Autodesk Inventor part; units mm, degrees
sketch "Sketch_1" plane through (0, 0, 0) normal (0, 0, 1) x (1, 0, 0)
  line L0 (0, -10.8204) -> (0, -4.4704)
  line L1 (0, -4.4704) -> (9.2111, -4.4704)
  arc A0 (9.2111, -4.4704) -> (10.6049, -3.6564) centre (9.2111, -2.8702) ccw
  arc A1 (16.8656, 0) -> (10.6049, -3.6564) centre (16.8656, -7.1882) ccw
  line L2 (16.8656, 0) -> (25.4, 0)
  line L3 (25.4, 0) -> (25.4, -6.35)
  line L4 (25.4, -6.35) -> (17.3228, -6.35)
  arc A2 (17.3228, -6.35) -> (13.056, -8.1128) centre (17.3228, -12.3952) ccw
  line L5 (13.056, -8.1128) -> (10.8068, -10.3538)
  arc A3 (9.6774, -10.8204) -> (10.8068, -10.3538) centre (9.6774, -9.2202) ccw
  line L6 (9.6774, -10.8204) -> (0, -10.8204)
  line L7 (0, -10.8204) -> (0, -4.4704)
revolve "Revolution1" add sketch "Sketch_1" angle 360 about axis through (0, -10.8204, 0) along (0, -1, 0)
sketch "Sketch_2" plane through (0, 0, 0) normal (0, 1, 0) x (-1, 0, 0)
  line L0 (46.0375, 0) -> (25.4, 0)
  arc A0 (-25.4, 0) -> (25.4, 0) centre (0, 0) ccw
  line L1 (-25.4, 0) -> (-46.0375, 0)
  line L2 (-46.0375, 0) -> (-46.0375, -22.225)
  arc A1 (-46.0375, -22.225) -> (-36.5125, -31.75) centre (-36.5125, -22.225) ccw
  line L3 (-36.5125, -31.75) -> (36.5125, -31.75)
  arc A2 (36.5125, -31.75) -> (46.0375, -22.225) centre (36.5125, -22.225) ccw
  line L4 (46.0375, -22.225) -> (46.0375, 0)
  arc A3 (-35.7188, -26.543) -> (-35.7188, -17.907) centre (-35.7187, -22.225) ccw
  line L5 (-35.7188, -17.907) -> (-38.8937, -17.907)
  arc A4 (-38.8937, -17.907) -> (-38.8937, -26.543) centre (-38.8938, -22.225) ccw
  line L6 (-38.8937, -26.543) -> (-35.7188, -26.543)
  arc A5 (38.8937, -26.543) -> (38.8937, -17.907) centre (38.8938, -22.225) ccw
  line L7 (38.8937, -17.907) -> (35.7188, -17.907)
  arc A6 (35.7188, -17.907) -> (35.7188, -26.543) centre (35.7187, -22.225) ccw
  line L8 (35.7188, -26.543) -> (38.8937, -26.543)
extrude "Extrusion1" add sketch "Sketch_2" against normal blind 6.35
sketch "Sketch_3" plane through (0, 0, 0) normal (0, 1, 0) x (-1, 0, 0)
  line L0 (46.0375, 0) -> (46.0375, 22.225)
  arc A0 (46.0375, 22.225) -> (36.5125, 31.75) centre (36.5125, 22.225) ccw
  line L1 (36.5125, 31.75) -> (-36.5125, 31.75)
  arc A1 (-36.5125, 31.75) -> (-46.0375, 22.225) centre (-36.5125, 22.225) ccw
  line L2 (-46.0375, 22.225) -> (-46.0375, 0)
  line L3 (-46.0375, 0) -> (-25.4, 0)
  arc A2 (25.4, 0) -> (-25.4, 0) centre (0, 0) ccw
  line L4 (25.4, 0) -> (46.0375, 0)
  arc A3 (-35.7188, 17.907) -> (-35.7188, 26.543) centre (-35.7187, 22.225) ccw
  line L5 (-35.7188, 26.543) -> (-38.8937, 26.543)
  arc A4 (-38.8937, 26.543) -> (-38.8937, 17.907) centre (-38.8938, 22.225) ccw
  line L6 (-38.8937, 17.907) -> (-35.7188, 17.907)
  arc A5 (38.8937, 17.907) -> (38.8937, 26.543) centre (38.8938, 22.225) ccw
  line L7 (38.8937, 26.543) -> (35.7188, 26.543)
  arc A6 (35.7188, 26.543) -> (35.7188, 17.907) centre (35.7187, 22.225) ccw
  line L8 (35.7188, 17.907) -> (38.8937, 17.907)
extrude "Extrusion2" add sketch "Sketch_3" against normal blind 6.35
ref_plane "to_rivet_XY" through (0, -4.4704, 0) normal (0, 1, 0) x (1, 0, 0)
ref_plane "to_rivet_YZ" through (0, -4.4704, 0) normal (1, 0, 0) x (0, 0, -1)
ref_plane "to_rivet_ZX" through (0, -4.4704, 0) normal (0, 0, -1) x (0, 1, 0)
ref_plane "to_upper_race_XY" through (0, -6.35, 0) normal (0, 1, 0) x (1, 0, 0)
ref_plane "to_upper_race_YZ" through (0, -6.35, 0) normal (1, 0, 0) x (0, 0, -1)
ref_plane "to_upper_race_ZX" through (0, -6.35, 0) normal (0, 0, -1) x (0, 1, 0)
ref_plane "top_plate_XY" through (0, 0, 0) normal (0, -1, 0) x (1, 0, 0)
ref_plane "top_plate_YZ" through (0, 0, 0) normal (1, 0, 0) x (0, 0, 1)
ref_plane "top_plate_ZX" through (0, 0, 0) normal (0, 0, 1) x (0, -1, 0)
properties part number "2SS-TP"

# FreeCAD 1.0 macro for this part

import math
import FreeCAD as App
import Part
import Sketcher
Q = App.Units.Quantity

doc = App.newDocument("Part")
body = doc.addObject("PartDesign::Body", "Body")

sketch1 = doc.addObject("Sketcher::SketchObject", "Sketch")
body.addObject(sketch1)
sketch1.AttachmentSupport = (doc.XY_Plane, [""])
sketch1.MapMode = "FlatFace"
sketch1.addGeometry([
    Part.LineSegment(App.Vector(0, -4.4704, 0), App.Vector(0, -10.8204, 0)),
    Part.LineSegment(App.Vector(0, -10.8204, 0), App.Vector(9.6774, -10.8204, 0)),
    Part.ArcOfCircle(Part.Circle(App.Vector(9.6774, -9.2202, 0), App.Vector(0, 0, 1), 1.6002), math.radians(-90), math.radians(-45.106338)),
    Part.LineSegment(App.Vector(10.8068, -10.3538, 0), App.Vector(13.056, -8.1128, 0)),
    Part.ArcOfCircle(Part.Circle(App.Vector(17.3228, -12.3952, 0), App.Vector(0, 0, 1), 6.0452), math.radians(90), math.radians(134.895451)),
    Part.LineSegment(App.Vector(17.3228, -6.35, 0), App.Vector(25.4, -6.35, 0)),
    Part.LineSegment(App.Vector(25.4, -6.35, 0), App.Vector(25.4, 0, 0)),
    Part.LineSegment(App.Vector(25.4, 0, 0), App.Vector(16.8656, 0, 0)),
    Part.ArcOfCircle(Part.Circle(App.Vector(16.8656, -7.1882, 0), App.Vector(0, 0, 1), 7.1882), math.radians(90), math.radians(150.571689)),
    Part.ArcOfCircle(Part.Circle(App.Vector(9.2111, -2.8702, 0), App.Vector(0, 0, 1), 1.6002), math.radians(-90), math.radians(-29.426017)),
    Part.LineSegment(App.Vector(9.2111, -4.4704, 0), App.Vector(0, -4.4704, 0)),
], False)
sketch1.addConstraint([
    Sketcher.Constraint("Coincident", 0, 2, 1, 1),
    Sketcher.Constraint("Tangent", 1, 2, 2, 1),
    Sketcher.Constraint("Tangent", 2, 2, 3, 1),
    Sketcher.Constraint("Tangent", 3, 2, 4, 2),
    Sketcher.Constraint("Tangent", 4, 1, 5, 1),
    Sketcher.Constraint("Coincident", 5, 2, 6, 1),
    Sketcher.Constraint("Coincident", 6, 2, 7, 1),
    Sketcher.Constraint("Tangent", 7, 2, 8, 1),
    Sketcher.Constraint("Tangent", 8, 2, 9, 2),
    Sketcher.Constraint("Tangent", 9, 1, 10, 1),
    Sketcher.Constraint("Coincident", 10, 2, 0, 1),
    Sketcher.Constraint("Vertical", 0),
    Sketcher.Constraint("Horizontal", 1),
    Sketcher.Constraint("Horizontal", 5),
    Sketcher.Constraint("Vertical", 6),
    Sketcher.Constraint("Horizontal", 7),
    Sketcher.Constraint("Horizontal", 10),
    Sketcher.Constraint("Equal", 2, 9),
    Sketcher.Constraint("PointOnObject", 0, 2, -2),
    Sketcher.Constraint("PointOnObject", 6, 2, -1),
    Sketcher.Constraint("Equal", 0, 6),
    Sketcher.Constraint("DistanceX", -1, 1, 5, 2, Q("1 in")),
    Sketcher.Constraint("Radius", 2, Q("0.063 in")),
    Sketcher.Constraint("Radius", 4, Q("0.238 in")),
    Sketcher.Constraint("Radius", 8, Q("0.283 in")),
    Sketcher.Constraint("DistanceY", 0, 2, 0, 1, Q("0.25 in")),
    Sketcher.Constraint("DistanceX", 1, 1, 1, 2, Q("0.381 in")),
    Sketcher.Constraint("DistanceX", 5, 1, 5, 2, Q("0.318 in")),
    Sketcher.Constraint("DistanceX", 7, 2, 7, 1, Q("0.336 in")),
    Sketcher.Constraint("DistanceY", 2, 3, 8, 3, Q("0.08 in")),
])
revolution = doc.addObject("PartDesign::Revolution", "Revolution")
body.addObject(revolution)
revolution.Profile = sketch1
revolution.ReferenceAxis = (sketch1, ["V_Axis"])
revolution.Angle = 360

sketch2 = doc.addObject("Sketcher::SketchObject", "Sketch001")
body.addObject(sketch2)
sketch2.AttachmentSupport = (doc.XZ_Plane, [""])
sketch2.MapMode = "FlatFace"
sketch2.addGeometry([
    Part.LineSegment(App.Vector(-46.0375, -22.225, 0), App.Vector(-46.0375, 0, 0)),
    Part.LineSegment(App.Vector(-46.0375, 0, 0), App.Vector(-25.4, 0, 0)),
    Part.ArcOfCircle(Part.Circle(App.Vector(0, 0, 0), App.Vector(0, 0, 1), 25.4), math.radians(180), math.radians(360)),
    Part.LineSegment(App.Vector(25.4, 0, 0), App.Vector(46.0375, 0, 0)),
    Part.LineSegment(App.Vector(46.0375, 0, 0), App.Vector(46.0375, -22.225, 0)),
    Part.ArcOfCircle(Part.Circle(App.Vector(36.5125, -22.225, 0), App.Vector(0, 0, 1), 9.525), math.radians(-90), math.radians(0)),
    Part.LineSegment(App.Vector(36.5125, -31.75, 0), App.Vector(-36.5125, -31.75, 0)),
    Part.ArcOfCircle(Part.Circle(App.Vector(-36.5125, -22.225, 0), App.Vector(0, 0, 1), 9.525), math.radians(180), math.radians(270)),
    Part.ArcOfCircle(Part.Circle(App.Vector(35.7187, -22.225, 0), App.Vector(0, 0, 1), 4.318), math.radians(89.998673), math.radians(270.001327)),
    Part.LineSegment(App.Vector(35.7188, -26.543, 0), App.Vector(38.8937, -26.543, 0)),
    Part.ArcOfCircle(Part.Circle(App.Vector(38.8938, -22.225, 0), App.Vector(0, 0, 1), 4.318), math.radians(-90.001327), math.radians(90.001327)),
    Part.LineSegment(App.Vector(38.8937, -17.907, 0), App.Vector(35.7188, -17.907, 0)),
    Part.ArcOfCircle(Part.Circle(App.Vector(-38.8938, -22.225, 0), App.Vector(0, 0, 1), 4.318), math.radians(89.998673), math.radians(270.001327)),
    Part.LineSegment(App.Vector(-38.8937, -26.543, 0), App.Vector(-35.7188, -26.543, 0)),
    Part.ArcOfCircle(Part.Circle(App.Vector(-35.7187, -22.225, 0), App.Vector(0, 0, 1), 4.318), math.radians(-90.001327), math.radians(90.001327)),
    Part.LineSegment(App.Vector(-35.7188, -17.907, 0), App.Vector(-38.8937, -17.907, 0)),
], False)
sketch2.addConstraint([
    Sketcher.Constraint("Coincident", 0, 2, 1, 1),
    Sketcher.Constraint("Coincident", 1, 2, 2, 1),
    Sketcher.Constraint("Coincident", 2, 2, 3, 1),
    Sketcher.Constraint("Coincident", 3, 2, 4, 1),
    Sketcher.Constraint("Tangent", 4, 2, 5, 2),
    Sketcher.Constraint("Tangent", 5, 1, 6, 1),
    Sketcher.Constraint("Tangent", 6, 2, 7, 2),
    Sketcher.Constraint("Tangent", 7, 1, 0, 1),
    Sketcher.Constraint("Tangent", 8, 2, 9, 1),
    Sketcher.Constraint("Tangent", 9, 2, 10, 1),
    Sketcher.Constraint("Tangent", 10, 2, 11, 1),
    Sketcher.Constraint("Tangent", 11, 2, 8, 1),
    Sketcher.Constraint("Tangent", 12, 2, 13, 1),
    Sketcher.Constraint("Tangent", 13, 2, 14, 1),
    Sketcher.Constraint("Tangent", 14, 2, 15, 1),
    Sketcher.Constraint("Tangent", 15, 2, 12, 1),
    Sketcher.Constraint("Vertical", 0),
    Sketcher.Constraint("Horizontal", 1),
    Sketcher.Constraint("Horizontal", 3),
    Sketcher.Constraint("Vertical", 4),
    Sketcher.Constraint("Horizontal", 6),
    Sketcher.Constraint("Horizontal", 9),
    Sketcher.Constraint("Horizontal", 11),
    Sketcher.Constraint("Horizontal", 13),
    Sketcher.Constraint("Horizontal", 15),
    Sketcher.Constraint("Coincident", 2, 3, -1, 1),
    Sketcher.Constraint("Equal", 5, 7),
    Sketcher.Constraint("Equal", 10, 12),
    Sketcher.Constraint("Symmetric", 0, 2, 3, 2, -1, 1),
    Sketcher.Constraint("Symmetric", 10, 3, 12, 3, -2),
    Sketcher.Constraint("PointOnObject", 0, 2, -1),
    Sketcher.Constraint("Horizontal", 7, 3, 8, 3),
    Sketcher.Constraint("Equal", 11, 13),
    Sketcher.Constraint("Radius", 2, Q("1 in")),
    Sketcher.Constraint("Radius", 8, Q("0.17 in")),
    Sketcher.Constraint("Radius", 5, Q("0.375 in")),
    Sketcher.Constraint("DistanceX", 1, 1, 1, 2, Q("0.8125 in")),
    Sketcher.Constraint("DistanceX", 9, 1, 9, 2, Q("0.125 in")),
    Sketcher.Constraint("DistanceY", 0, 1, 0, 2, Q("0.875 in")),
    Sketcher.Constraint("DistanceX", -1, 1, 8, 3, Q("1.406248 in")),
])
pad1 = doc.addObject("PartDesign::Pad", "Pad")
body.addObject(pad1)
pad1.Profile = sketch2
pad1.Length = Q("0.25 in")

sketch3 = doc.addObject("Sketcher::SketchObject", "Sketch002")
body.addObject(sketch3)
sketch3.AttachmentSupport = (doc.XZ_Plane, [""])
sketch3.MapMode = "FlatFace"
sketch3.addGeometry([
    Part.LineSegment(App.Vector(-25.4, 0, 0), App.Vector(-46.0375, 0, 0)),
    Part.LineSegment(App.Vector(-46.0375, 0, 0), App.Vector(-46.0375, 22.225, 0)),
    Part.ArcOfCircle(Part.Circle(App.Vector(-36.5125, 22.225, 0), App.Vector(0, 0, 1), 9.525), math.radians(90), math.radians(180)),
    Part.LineSegment(App.Vector(-36.5125, 31.75, 0), App.Vector(36.5125, 31.75, 0)),
    Part.ArcOfCircle(Part.Circle(App.Vector(36.5125, 22.225, 0), App.Vector(0, 0, 1), 9.525), math.radians(0), math.radians(90)),
    Part.LineSegment(App.Vector(46.0375, 22.225, 0), App.Vector(46.0375, 0, 0)),
    Part.LineSegment(App.Vector(46.0375, 0, 0), App.Vector(25.4, 0, 0)),
    Part.ArcOfCircle(Part.Circle(App.Vector(0, 0, 0), App.Vector(0, 0, 1), 25.4), math.radians(0), math.radians(180)),
    Part.ArcOfCircle(Part.Circle(App.Vector(35.7187, 22.225, 0), App.Vector(0, 0, 1), 4.318), math.radians(89.998673), math.radians(270.001327)),
    Part.LineSegment(App.Vector(35.7188, 17.907, 0), App.Vector(38.8937, 17.907, 0)),
    Part.ArcOfCircle(Part.Circle(App.Vector(38.8938, 22.225, 0), App.Vector(0, 0, 1), 4.318), math.radians(-90.001327), math.radians(90.001327)),
    Part.LineSegment(App.Vector(38.8937, 26.543, 0), App.Vector(35.7188, 26.543, 0)),
    Part.ArcOfCircle(Part.Circle(App.Vector(-38.8938, 22.225, 0), App.Vector(0, 0, 1), 4.318), math.radians(89.998673), math.radians(270.001327)),
    Part.LineSegment(App.Vector(-38.8937, 17.907, 0), App.Vector(-35.7188, 17.907, 0)),
    Part.ArcOfCircle(Part.Circle(App.Vector(-35.7187, 22.225, 0), App.Vector(0, 0, 1), 4.318), math.radians(-90.001327), math.radians(90.001327)),
    Part.LineSegment(App.Vector(-35.7188, 26.543, 0), App.Vector(-38.8937, 26.543, 0)),
], False)
sketch3.addConstraint([
    Sketcher.Constraint("Coincident", 0, 2, 1, 1),
    Sketcher.Constraint("Tangent", 1, 2, 2, 2),
    Sketcher.Constraint("Tangent", 2, 1, 3, 1),
    Sketcher.Constraint("Tangent", 3, 2, 4, 2),
    Sketcher.Constraint("Tangent", 4, 1, 5, 1),
    Sketcher.Constraint("Coincident", 5, 2, 6, 1),
    Sketcher.Constraint("Coincident", 6, 2, 7, 1),
    Sketcher.Constraint("Coincident", 7, 2, 0, 1),
    Sketcher.Constraint("Tangent", 8, 2, 9, 1),
    Sketcher.Constraint("Tangent", 9, 2, 10, 1),
    Sketcher.Constraint("Tangent", 10, 2, 11, 1),
    Sketcher.Constraint("Tangent", 11, 2, 8, 1),
    Sketcher.Constraint("Tangent", 12, 2, 13, 1),
    Sketcher.Constraint("Tangent", 13, 2, 14, 1),
    Sketcher.Constraint("Tangent", 14, 2, 15, 1),
    Sketcher.Constraint("Tangent", 15, 2, 12, 1),
    Sketcher.Constraint("Horizontal", 0),
    Sketcher.Constraint("Vertical", 1),
    Sketcher.Constraint("Horizontal", 3),
    Sketcher.Constraint("Vertical", 5),
    Sketcher.Constraint("Horizontal", 6),
    Sketcher.Constraint("Horizontal", 9),
    Sketcher.Constraint("Horizontal", 11),
    Sketcher.Constraint("Horizontal", 13),
    Sketcher.Constraint("Horizontal", 15),
    Sketcher.Constraint("Coincident", 7, 3, -1, 1),
    Sketcher.Constraint("Equal", 2, 4),
    Sketcher.Constraint("Equal", 10, 12),
    Sketcher.Constraint("Symmetric", 0, 2, 5, 2, -1, 1),
    Sketcher.Constraint("Symmetric", 10, 3, 12, 3, -2),
    Sketcher.Constraint("PointOnObject", 0, 2, -1),
    Sketcher.Constraint("Horizontal", 4, 3, 8, 3),
    Sketcher.Constraint("Equal", 11, 13),
    Sketcher.Constraint("Radius", 7, Q("1 in")),
    Sketcher.Constraint("Radius", 8, Q("0.17 in")),
    Sketcher.Constraint("Radius", 2, Q("0.375 in")),
    Sketcher.Constraint("DistanceX", 0, 2, 0, 1, Q("0.8125 in")),
    Sketcher.Constraint("DistanceX", 9, 1, 9, 2, Q("0.125 in")),
    Sketcher.Constraint("DistanceY", 1, 1, 1, 2, Q("0.875 in")),
    Sketcher.Constraint("DistanceX", -1, 1, 8, 3, Q("1.406248 in")),
])
pad2 = doc.addObject("PartDesign::Pad", "Pad001")
body.addObject(pad2)
pad2.Profile = sketch3
pad2.Length = Q("0.25 in")

doc.recompute()
